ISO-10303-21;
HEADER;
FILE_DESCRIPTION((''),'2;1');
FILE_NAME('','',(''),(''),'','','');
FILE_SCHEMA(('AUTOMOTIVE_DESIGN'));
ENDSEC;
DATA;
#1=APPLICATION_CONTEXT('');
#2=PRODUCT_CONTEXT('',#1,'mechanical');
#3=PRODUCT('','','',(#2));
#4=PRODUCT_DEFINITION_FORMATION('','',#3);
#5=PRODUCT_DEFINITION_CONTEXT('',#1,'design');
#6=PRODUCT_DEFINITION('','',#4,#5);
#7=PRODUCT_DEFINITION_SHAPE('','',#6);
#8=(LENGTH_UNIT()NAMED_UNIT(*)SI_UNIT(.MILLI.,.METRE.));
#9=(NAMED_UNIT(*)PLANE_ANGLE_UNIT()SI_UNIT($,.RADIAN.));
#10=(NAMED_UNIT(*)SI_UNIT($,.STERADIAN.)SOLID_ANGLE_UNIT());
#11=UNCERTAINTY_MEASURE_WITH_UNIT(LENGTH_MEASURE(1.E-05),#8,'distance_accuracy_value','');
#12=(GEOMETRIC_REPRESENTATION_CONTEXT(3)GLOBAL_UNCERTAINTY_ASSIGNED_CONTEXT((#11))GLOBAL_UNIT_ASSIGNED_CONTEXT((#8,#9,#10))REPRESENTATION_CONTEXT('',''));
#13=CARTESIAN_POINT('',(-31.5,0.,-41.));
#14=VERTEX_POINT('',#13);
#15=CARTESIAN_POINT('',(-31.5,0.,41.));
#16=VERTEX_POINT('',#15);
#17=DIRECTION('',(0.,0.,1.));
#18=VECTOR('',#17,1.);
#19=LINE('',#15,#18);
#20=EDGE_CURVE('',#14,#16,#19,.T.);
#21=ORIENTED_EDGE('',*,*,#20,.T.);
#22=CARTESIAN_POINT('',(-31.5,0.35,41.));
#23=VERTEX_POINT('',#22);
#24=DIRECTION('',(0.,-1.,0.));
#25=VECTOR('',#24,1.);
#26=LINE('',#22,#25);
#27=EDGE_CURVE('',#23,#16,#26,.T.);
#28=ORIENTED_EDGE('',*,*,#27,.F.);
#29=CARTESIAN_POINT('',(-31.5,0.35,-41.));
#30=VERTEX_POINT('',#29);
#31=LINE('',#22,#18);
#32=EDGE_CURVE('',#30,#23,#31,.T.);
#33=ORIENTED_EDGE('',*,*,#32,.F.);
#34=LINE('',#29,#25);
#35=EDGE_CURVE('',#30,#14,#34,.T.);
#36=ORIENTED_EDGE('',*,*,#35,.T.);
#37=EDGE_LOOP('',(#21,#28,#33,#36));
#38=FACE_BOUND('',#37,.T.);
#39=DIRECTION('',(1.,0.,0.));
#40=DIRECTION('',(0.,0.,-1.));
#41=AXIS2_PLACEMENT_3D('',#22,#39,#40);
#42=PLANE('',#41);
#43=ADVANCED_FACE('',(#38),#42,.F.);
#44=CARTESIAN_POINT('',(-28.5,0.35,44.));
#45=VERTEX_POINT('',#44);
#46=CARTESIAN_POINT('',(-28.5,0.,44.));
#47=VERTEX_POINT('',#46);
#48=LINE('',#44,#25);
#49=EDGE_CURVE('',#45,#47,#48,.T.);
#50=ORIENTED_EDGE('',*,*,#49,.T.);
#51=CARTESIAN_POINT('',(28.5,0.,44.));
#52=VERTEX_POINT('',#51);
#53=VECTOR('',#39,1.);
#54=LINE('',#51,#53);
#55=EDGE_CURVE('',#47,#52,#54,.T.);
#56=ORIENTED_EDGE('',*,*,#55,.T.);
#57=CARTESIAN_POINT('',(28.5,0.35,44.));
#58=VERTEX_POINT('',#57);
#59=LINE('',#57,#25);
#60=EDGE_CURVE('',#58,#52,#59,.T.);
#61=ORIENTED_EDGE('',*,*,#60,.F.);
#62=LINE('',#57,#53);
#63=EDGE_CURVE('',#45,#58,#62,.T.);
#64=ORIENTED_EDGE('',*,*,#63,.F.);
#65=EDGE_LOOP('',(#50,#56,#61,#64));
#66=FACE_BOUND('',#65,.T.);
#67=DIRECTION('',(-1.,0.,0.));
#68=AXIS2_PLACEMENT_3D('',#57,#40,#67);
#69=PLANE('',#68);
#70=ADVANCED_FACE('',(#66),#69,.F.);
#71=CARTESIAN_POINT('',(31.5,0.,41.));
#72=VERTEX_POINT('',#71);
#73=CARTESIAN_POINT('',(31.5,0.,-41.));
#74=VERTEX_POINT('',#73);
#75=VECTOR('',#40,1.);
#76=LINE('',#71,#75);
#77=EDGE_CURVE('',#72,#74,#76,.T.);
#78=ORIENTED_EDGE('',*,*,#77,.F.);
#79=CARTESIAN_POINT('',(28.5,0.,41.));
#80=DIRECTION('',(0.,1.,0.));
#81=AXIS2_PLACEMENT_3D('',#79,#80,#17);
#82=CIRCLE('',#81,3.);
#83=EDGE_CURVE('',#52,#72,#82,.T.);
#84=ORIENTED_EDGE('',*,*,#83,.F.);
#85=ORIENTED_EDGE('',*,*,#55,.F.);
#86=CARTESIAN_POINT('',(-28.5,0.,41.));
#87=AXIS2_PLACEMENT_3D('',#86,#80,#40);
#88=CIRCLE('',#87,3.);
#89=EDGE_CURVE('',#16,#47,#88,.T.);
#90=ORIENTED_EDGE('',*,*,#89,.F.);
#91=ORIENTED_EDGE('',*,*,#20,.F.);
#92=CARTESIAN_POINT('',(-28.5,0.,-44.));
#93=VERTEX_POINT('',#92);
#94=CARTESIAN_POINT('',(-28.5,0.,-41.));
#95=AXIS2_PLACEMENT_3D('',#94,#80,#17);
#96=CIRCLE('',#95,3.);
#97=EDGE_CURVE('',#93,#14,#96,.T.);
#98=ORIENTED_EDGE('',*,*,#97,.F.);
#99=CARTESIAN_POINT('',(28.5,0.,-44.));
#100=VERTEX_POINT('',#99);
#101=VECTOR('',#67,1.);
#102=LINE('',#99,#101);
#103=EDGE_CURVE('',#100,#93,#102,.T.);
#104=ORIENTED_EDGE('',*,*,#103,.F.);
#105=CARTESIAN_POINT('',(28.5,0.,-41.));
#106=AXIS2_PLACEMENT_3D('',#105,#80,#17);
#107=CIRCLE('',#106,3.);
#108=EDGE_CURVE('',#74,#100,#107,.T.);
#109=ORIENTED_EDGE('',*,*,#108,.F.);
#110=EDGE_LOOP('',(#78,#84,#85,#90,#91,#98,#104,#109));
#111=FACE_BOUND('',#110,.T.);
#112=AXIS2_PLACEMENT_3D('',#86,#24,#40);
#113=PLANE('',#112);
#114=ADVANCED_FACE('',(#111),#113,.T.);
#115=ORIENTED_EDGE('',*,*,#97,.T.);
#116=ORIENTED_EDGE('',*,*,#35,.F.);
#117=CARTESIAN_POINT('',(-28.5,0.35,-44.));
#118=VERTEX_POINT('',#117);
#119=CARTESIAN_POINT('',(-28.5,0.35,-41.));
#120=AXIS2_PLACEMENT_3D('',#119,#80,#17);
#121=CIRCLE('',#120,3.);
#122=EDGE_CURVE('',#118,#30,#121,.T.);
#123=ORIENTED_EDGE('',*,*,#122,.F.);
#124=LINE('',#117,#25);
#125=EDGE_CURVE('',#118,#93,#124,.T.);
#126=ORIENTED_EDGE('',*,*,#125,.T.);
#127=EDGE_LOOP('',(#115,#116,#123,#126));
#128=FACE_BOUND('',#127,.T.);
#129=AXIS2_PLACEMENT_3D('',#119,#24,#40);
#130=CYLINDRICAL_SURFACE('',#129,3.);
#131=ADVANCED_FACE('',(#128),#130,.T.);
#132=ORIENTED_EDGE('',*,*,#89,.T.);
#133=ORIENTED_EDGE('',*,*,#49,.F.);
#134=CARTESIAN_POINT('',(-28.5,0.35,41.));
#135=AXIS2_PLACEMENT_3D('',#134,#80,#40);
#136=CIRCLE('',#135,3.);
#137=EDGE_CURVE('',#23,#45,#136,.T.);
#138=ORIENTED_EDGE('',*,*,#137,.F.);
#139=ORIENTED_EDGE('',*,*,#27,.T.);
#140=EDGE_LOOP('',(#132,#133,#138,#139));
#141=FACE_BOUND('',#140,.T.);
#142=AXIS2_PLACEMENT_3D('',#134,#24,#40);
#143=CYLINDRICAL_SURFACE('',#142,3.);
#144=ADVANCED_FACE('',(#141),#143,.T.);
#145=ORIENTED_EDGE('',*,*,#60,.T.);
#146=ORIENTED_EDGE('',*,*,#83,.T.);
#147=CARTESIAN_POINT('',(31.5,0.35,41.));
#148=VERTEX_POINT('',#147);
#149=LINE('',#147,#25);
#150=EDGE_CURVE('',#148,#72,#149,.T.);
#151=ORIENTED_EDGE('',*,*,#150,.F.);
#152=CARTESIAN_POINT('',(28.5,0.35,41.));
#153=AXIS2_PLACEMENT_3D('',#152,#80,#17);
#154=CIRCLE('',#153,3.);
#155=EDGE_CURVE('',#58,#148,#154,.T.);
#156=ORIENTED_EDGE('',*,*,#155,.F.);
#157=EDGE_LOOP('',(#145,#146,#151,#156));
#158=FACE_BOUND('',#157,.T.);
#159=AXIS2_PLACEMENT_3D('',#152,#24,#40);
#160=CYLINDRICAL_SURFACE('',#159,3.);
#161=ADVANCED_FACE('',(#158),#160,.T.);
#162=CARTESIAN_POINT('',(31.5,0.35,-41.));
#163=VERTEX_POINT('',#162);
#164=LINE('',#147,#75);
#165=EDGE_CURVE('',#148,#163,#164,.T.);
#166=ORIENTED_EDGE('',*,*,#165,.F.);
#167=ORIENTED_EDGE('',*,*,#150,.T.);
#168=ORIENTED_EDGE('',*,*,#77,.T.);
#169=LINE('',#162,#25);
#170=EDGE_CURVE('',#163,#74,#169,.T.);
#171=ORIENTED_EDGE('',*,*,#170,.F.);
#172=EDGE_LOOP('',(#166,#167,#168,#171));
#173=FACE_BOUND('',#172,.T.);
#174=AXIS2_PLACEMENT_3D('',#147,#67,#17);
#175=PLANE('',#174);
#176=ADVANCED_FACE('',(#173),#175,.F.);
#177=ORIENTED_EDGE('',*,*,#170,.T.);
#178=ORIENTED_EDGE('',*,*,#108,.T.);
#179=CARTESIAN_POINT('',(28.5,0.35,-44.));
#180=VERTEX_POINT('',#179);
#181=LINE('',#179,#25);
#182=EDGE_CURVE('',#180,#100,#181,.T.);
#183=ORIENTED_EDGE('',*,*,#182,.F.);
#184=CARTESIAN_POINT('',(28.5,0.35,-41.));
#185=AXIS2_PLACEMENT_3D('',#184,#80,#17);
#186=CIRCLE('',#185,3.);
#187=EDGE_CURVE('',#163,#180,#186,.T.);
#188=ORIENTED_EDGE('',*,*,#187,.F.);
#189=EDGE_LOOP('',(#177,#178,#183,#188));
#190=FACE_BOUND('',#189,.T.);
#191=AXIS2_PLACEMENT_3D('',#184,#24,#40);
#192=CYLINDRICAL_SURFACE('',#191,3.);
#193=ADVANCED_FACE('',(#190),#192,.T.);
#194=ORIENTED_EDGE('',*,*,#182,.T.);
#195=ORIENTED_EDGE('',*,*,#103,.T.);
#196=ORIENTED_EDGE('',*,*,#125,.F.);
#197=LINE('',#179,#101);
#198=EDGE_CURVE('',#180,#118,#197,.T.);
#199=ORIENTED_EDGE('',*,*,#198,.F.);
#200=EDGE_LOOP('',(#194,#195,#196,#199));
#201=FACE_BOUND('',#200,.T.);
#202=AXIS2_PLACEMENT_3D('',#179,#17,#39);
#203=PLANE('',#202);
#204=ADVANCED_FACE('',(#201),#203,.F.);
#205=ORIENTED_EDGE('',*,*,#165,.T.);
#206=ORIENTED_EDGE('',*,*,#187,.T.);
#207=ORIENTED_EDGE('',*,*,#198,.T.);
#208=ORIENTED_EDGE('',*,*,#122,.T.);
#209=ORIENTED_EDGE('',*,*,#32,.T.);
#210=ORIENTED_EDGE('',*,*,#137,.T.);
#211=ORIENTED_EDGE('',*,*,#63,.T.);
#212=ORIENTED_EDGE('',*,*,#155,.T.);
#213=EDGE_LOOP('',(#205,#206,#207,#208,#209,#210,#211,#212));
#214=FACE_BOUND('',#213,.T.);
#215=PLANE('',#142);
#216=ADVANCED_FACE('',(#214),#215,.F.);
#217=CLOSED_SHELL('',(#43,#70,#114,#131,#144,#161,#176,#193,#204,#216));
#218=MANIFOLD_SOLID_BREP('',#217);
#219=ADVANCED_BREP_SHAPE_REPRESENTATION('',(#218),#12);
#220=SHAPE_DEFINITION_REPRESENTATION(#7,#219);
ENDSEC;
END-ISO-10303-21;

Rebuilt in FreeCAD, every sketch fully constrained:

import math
import FreeCAD as App
import Part
import Sketcher

doc = App.newDocument("Part")
body = doc.addObject("PartDesign::Body", "Body")

# Sketch on XZ plane
sketch1 = doc.addObject("Sketcher::SketchObject", "Sketch")
body.addObject(sketch1)
sketch1.AttachmentSupport = (doc.XZ_Plane, [""])
sketch1.MapMode = "FlatFace"
sketch1.addGeometry([
    Part.LineSegment(App.Vector(-28.5, 44, 0), App.Vector(28.5, 44, 0)),  # 0
    Part.ArcOfCircle(Part.Circle(App.Vector(28.5, 41, 0), App.Vector(0, 0, 1), 3), math.radians(0), math.radians(90)),  # 1
    Part.LineSegment(App.Vector(31.5, 41, 0), App.Vector(31.5, -41, 0)),  # 2
    Part.ArcOfCircle(Part.Circle(App.Vector(28.5, -41, 0), App.Vector(0, 0, 1), 3), math.radians(-90), math.radians(0)),  # 3
    Part.LineSegment(App.Vector(28.5, -44, 0), App.Vector(-28.5, -44, 0)),  # 4
    Part.ArcOfCircle(Part.Circle(App.Vector(-28.5, -41, 0), App.Vector(0, 0, 1), 3), math.radians(180), math.radians(270)),  # 5
    Part.LineSegment(App.Vector(-31.5, -41, 0), App.Vector(-31.5, 41, 0)),  # 6
    Part.ArcOfCircle(Part.Circle(App.Vector(-28.5, 41, 0), App.Vector(0, 0, 1), 3), math.radians(90), math.radians(180)),  # 7
], False)
sketch1.addConstraint([
    Sketcher.Constraint("Tangent", 0, 2, 1, 2),
    Sketcher.Constraint("Tangent", 1, 1, 2, 1),
    Sketcher.Constraint("Tangent", 2, 2, 3, 2),
    Sketcher.Constraint("Tangent", 3, 1, 4, 1),
    Sketcher.Constraint("Tangent", 4, 2, 5, 2),
    Sketcher.Constraint("Tangent", 5, 1, 6, 1),
    Sketcher.Constraint("Tangent", 6, 2, 7, 2),
    Sketcher.Constraint("Tangent", 7, 1, 0, 1),
    Sketcher.Constraint("Horizontal", 0),
    Sketcher.Constraint("Vertical", 2),
    Sketcher.Constraint("Horizontal", 4),
    Sketcher.Constraint("Vertical", 6),
    Sketcher.Constraint("Equal", 1, 3),
    Sketcher.Constraint("Equal", 3, 5),
    Sketcher.Constraint("Equal", 5, 7),
    Sketcher.Constraint("Symmetric", 1, 3, 5, 3, -1, 1),
    Sketcher.Constraint("Radius", 1, 3.0),
    Sketcher.Constraint("DistanceX", 0, 1, 0, 2, 57.0),
    Sketcher.Constraint("DistanceY", 2, 2, 2, 1, 82.0),
])
pad1 = doc.addObject("PartDesign::Pad", "Pad")
body.addObject(pad1)
pad1.Profile = sketch1
pad1.Length = 0.35
pad1.Reversed = True

doc.recompute()
